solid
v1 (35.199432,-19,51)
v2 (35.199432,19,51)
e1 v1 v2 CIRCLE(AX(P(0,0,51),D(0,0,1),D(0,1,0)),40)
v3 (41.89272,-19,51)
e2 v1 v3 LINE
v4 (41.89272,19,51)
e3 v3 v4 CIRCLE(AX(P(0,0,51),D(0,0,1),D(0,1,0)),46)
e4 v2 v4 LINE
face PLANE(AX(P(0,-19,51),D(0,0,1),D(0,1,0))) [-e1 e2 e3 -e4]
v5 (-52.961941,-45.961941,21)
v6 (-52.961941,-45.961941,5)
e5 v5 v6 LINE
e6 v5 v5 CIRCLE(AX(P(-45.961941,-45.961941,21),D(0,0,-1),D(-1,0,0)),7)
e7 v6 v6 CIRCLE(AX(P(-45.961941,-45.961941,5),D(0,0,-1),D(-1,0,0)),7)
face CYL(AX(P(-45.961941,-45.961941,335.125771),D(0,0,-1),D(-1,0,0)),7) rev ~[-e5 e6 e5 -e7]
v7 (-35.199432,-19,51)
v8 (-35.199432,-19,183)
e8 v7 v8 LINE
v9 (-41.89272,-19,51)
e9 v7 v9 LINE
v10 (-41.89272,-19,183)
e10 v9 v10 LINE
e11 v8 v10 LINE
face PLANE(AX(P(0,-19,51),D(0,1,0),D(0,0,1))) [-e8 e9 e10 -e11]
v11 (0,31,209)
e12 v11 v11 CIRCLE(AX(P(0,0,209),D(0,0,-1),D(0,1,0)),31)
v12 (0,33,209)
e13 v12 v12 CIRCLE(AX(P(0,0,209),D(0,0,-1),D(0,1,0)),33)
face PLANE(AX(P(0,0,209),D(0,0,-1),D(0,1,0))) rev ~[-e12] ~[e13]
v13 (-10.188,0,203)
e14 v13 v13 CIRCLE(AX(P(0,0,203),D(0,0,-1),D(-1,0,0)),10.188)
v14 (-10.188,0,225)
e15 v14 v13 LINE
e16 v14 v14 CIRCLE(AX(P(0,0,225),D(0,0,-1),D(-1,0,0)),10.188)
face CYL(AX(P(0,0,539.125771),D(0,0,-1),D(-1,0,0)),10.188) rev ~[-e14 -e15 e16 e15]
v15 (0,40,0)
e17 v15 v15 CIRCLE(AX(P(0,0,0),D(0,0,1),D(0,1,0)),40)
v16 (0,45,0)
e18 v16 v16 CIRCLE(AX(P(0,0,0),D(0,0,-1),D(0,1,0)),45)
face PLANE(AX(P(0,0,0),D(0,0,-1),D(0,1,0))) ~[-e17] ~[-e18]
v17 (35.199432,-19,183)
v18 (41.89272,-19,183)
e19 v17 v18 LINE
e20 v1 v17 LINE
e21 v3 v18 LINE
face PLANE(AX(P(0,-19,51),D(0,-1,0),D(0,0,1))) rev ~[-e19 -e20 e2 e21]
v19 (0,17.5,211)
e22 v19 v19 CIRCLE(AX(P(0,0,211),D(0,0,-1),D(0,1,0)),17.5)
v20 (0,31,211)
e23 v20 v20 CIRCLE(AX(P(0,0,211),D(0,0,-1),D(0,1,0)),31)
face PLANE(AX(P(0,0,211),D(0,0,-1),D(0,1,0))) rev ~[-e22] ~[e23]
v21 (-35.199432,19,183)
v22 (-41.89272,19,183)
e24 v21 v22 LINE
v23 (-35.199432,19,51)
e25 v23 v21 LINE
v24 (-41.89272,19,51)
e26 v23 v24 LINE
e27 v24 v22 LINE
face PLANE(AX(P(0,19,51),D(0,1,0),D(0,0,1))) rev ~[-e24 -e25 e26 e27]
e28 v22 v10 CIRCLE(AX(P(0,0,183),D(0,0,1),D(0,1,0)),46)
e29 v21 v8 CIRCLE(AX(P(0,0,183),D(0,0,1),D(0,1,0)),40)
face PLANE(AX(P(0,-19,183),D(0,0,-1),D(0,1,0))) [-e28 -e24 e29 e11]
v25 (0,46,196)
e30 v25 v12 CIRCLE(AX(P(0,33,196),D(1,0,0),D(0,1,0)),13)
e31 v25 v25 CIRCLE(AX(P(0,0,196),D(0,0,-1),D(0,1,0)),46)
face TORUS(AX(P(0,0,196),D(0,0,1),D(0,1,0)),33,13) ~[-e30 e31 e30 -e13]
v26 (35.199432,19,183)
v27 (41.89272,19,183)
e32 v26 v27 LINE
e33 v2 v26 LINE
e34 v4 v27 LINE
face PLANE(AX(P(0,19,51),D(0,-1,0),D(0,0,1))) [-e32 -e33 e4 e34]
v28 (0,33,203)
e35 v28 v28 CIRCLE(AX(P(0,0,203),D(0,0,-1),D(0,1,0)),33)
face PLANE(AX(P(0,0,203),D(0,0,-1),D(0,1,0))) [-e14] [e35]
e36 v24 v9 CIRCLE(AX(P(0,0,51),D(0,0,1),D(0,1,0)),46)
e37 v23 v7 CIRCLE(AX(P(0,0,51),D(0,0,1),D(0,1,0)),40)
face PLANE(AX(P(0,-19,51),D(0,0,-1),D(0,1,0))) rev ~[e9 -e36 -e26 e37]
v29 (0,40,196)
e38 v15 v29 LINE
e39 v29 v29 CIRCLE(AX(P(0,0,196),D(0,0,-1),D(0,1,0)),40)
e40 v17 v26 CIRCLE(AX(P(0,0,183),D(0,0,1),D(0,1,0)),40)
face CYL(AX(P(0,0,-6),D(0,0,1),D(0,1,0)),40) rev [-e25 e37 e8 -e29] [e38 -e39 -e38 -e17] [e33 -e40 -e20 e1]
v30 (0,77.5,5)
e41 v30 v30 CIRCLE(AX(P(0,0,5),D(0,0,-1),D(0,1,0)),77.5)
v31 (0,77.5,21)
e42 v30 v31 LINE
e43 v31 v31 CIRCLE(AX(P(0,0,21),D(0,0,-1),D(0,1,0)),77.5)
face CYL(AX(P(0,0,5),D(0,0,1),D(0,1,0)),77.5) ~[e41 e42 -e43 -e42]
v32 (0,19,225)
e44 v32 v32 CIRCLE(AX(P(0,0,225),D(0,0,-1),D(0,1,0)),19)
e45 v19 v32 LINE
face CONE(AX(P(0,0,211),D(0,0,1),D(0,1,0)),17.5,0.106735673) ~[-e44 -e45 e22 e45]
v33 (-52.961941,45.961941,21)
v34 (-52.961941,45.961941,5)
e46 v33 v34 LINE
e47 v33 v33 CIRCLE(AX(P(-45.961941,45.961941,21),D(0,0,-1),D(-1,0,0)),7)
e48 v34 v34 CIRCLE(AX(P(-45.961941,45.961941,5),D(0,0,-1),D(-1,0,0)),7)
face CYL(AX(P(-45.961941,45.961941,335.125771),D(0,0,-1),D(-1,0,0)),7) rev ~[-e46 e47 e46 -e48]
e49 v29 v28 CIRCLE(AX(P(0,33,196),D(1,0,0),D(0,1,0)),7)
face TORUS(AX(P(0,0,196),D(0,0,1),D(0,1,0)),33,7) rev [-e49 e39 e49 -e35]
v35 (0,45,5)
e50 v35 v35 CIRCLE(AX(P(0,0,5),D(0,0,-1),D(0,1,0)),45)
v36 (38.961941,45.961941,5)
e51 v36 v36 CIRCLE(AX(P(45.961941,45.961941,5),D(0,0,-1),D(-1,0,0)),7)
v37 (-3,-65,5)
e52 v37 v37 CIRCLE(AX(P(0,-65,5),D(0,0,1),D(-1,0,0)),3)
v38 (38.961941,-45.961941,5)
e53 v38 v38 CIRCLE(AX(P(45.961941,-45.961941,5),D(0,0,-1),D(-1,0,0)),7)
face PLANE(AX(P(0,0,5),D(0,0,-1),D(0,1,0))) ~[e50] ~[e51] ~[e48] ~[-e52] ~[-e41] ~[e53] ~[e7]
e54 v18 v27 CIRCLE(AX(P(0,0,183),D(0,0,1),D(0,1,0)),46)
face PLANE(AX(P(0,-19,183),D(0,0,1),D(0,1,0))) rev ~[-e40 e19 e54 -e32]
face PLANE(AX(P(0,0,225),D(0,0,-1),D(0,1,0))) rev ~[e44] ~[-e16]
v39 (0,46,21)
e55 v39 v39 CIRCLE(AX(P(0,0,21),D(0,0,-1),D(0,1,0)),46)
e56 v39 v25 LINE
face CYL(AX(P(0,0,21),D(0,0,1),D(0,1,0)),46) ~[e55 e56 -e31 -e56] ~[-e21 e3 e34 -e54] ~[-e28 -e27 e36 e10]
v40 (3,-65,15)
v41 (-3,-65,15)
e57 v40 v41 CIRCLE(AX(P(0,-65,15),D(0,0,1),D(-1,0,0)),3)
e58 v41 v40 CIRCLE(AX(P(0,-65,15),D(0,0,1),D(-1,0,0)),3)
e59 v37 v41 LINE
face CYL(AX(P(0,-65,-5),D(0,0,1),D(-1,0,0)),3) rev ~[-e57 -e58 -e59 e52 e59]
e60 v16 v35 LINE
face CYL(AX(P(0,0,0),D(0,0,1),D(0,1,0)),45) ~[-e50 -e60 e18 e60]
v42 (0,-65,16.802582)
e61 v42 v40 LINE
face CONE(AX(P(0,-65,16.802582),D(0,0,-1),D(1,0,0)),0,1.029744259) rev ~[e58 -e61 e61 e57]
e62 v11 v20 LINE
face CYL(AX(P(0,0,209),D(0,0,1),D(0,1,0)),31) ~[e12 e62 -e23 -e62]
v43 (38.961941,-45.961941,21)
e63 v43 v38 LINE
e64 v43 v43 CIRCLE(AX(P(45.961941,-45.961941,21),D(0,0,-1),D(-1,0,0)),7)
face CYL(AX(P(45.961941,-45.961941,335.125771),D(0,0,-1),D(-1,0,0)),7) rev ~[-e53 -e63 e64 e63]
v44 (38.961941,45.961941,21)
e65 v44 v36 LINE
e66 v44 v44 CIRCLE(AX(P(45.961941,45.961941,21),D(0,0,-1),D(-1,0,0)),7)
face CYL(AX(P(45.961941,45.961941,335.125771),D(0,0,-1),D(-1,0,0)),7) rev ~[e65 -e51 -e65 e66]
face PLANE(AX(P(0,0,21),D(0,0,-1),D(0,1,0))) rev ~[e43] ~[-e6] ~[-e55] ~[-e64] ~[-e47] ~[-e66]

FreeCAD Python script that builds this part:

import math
import FreeCAD as App
import Part
import Sketcher
Q = App.Units.Quantity

doc = App.newDocument("Part")
body = doc.addObject("PartDesign::Body", "Body")

# Sketch on YZ plane
sketch1 = body.newObject("Sketcher::SketchObject", "Sketch")
sketch1.AttachmentSupport = (doc.getObject("YZ_Plane"), [""])
sketch1.MapMode = "FlatFace"
sketch1.addGeometry([
    Part.LineSegment(App.Vector(19, 225, 0), App.Vector(0, 225, 0)),  # 0
    Part.LineSegment(App.Vector(0, 225, 0), App.Vector(0, 0, 0)),  # 1
    Part.LineSegment(App.Vector(0, 0, 0), App.Vector(45, 0, 0)),  # 2
    Part.LineSegment(App.Vector(45, 0, 0), App.Vector(45, 5, 0)),  # 3
    Part.LineSegment(App.Vector(45, 5, 0), App.Vector(77.5, 5, 0)),  # 4
    Part.LineSegment(App.Vector(77.5, 5, 0), App.Vector(77.5, 21, 0)),  # 5
    Part.LineSegment(App.Vector(77.5, 21, 0), App.Vector(46, 21, 0)),  # 6
    Part.LineSegment(App.Vector(46, 21, 0), App.Vector(46, 196, 0)),  # 7
    Part.ArcOfCircle(Part.Circle(App.Vector(33, 196, 0), App.Vector(0, 0, 1), 13), math.radians(0), math.radians(90)),  # 8
    Part.LineSegment(App.Vector(33, 209, 0), App.Vector(31, 209, 0)),  # 9
    Part.LineSegment(App.Vector(31, 209, 0), App.Vector(31, 211, 0)),  # 10
    Part.LineSegment(App.Vector(31, 211, 0), App.Vector(17.5, 211, 0)),  # 11
    Part.LineSegment(App.Vector(17.5, 211, 0), App.Vector(19, 225, 0)),  # 12
], False)
sketch1.addConstraint([
    Sketcher.Constraint("Coincident", 0, 2, 1, 1),
    Sketcher.Constraint("Coincident", 1, 2, 2, 1),
    Sketcher.Constraint("Coincident", 2, 2, 3, 1),
    Sketcher.Constraint("Coincident", 3, 2, 4, 1),
    Sketcher.Constraint("Coincident", 4, 2, 5, 1),
    Sketcher.Constraint("Coincident", 5, 2, 6, 1),
    Sketcher.Constraint("Coincident", 6, 2, 7, 1),
    Sketcher.Constraint("Tangent", 7, 2, 8, 1),
    Sketcher.Constraint("Tangent", 8, 2, 9, 1),
    Sketcher.Constraint("Coincident", 9, 2, 10, 1),
    Sketcher.Constraint("Coincident", 10, 2, 11, 1),
    Sketcher.Constraint("Coincident", 11, 2, 12, 1),
    Sketcher.Constraint("Coincident", 12, 2, 0, 1),
    Sketcher.Constraint("Horizontal", 0),
    Sketcher.Constraint("Vertical", 1),
    Sketcher.Constraint("Horizontal", 2),
    Sketcher.Constraint("Vertical", 3),
    Sketcher.Constraint("Horizontal", 4),
    Sketcher.Constraint("Vertical", 5),
    Sketcher.Constraint("Horizontal", 6),
    Sketcher.Constraint("Vertical", 7),
    Sketcher.Constraint("Horizontal", 9),
    Sketcher.Constraint("Vertical", 10),
    Sketcher.Constraint("Horizontal", 11),
    Sketcher.Constraint("Coincident", 1, 2, -1, 1),
    Sketcher.Constraint("Equal", 9, 10),
    Sketcher.Constraint("Radius", 8, Q("13 mm")),
    Sketcher.Constraint("DistanceX", 0, 2, 0, 1, Q("19 mm")),
    Sketcher.Constraint("DistanceX", 2, 1, 2, 2, Q("45 mm")),
    Sketcher.Constraint("DistanceX", 9, 2, 9, 1, Q("2 mm")),
    Sketcher.Constraint("DistanceY", 1, 2, 1, 1, Q("225 mm")),
    Sketcher.Constraint("DistanceY", 3, 1, 3, 2, Q("5 mm")),
    Sketcher.Constraint("DistanceY", 5, 1, 5, 2, Q("16 mm")),
    Sketcher.Constraint("DistanceY", 7, 1, 7, 2, Q("175 mm")),
    Sketcher.Constraint("DistanceX", 4, 1, 4, 2, Q("32.5 mm")),
    Sketcher.Constraint("DistanceX", 6, 2, 6, 1, Q("31.5 mm")),
    Sketcher.Constraint("DistanceX", 11, 2, 11, 1, Q("13.5 mm")),
])
revolution = body.newObject("PartDesign::Revolution", "Revolution")
revolution.Profile = sketch1
revolution.ReferenceAxis = (sketch1, ["V_Axis"])
revolution.Angle = 360

# Sketch on YZ plane
sketch2 = body.newObject("Sketcher::SketchObject", "Sketch001")
sketch2.AttachmentSupport = (doc.getObject("YZ_Plane"), [""])
sketch2.MapMode = "FlatFace"
sketch2.addGeometry([
    Part.LineSegment(App.Vector(33, 203, 0), App.Vector(0, 203, 0)),  # 0
    Part.LineSegment(App.Vector(0, 203, 0), App.Vector(0, -6, 0)),  # 1
    Part.LineSegment(App.Vector(0, -6, 0), App.Vector(40, -6, 0)),  # 2
    Part.LineSegment(App.Vector(40, -6, 0), App.Vector(40, 196, 0)),  # 3
    Part.ArcOfCircle(Part.Circle(App.Vector(33, 196, 0), App.Vector(0, 0, 1), 7), math.radians(0), math.radians(90)),  # 4
], False)
sketch2.addConstraint([
    Sketcher.Constraint("Coincident", 0, 2, 1, 1),
    Sketcher.Constraint("Coincident", 1, 2, 2, 1),
    Sketcher.Constraint("Coincident", 2, 2, 3, 1),
    Sketcher.Constraint("Tangent", 3, 2, 4, 1),
    Sketcher.Constraint("Tangent", 4, 2, 0, 1),
    Sketcher.Constraint("Horizontal", 0),
    Sketcher.Constraint("Vertical", 1),
    Sketcher.Constraint("Horizontal", 2),
    Sketcher.Constraint("Vertical", 3),
    Sketcher.Constraint("PointOnObject", 0, 2, -2),
    Sketcher.Constraint("Radius", 4, Q("7 mm")),
    Sketcher.Constraint("DistanceX", 0, 2, 0, 1, Q("33 mm")),
    Sketcher.Constraint("DistanceY", 1, 2, 1, 1, Q("209 mm")),
    Sketcher.Constraint("DistanceY", -1, 1, 4, 3, Q("196 mm")),
])
groove = body.newObject("PartDesign::Groove", "Groove")
groove.Profile = sketch2
groove.ReferenceAxis = (sketch2, ["V_Axis"])
groove.Angle = 360

# Sketch on XY plane
sketch3 = body.newObject("Sketcher::SketchObject", "Sketch002")
sketch3.AttachmentSupport = (doc.getObject("XY_Plane"), [""])
sketch3.MapMode = "FlatFace"
sketch3.AttachmentOffset = App.Placement(App.Vector(0, 0, 225), App.Rotation())
sketch3.addGeometry(Part.Circle(App.Vector(0, 0, 0), App.Vector(0, 0, 1), 10), False)
sketch3.addConstraint([
    Sketcher.Constraint("Coincident", 0, 3, -1, 1),
    Sketcher.Constraint("Diameter", 0, Q("20.376 mm")),
])
doc.recompute()
hole = body.newObject("PartDesign::Hole", "Hole")
hole.Profile = sketch3
hole.ThreadType = "None"
hole.Diameter = 20.376
hole.DepthType = "ThroughAll"

# Sketch on XY plane
sketch4 = body.newObject("Sketcher::SketchObject", "Sketch003")
sketch4.AttachmentSupport = (doc.getObject("XY_Plane"), [""])
sketch4.MapMode = "FlatFace"
sketch4.AttachmentOffset = App.Placement(App.Vector(0, 0, 21), App.Rotation())
sketch4.addGeometry([
    Part.Circle(App.Vector(46, 46, 0), App.Vector(0, 0, 1), 7),
    Part.Circle(App.Vector(46, -46, 0), App.Vector(0, 0, 1), 7),
    Part.Circle(App.Vector(-46, 46, 0), App.Vector(0, 0, 1), 7),
    Part.Circle(App.Vector(-46, -46, 0), App.Vector(0, 0, 1), 7),
], False)
sketch4.addConstraint([
    Sketcher.Constraint("Equal", 0, 1),
    Sketcher.Constraint("Equal", 1, 2),
    Sketcher.Constraint("Equal", 2, 3),
    Sketcher.Constraint("Symmetric", 1, 3, 2, 3, -1, 1),
    Sketcher.Constraint("Symmetric", 0, 3, 3, 3, -1, 1),
    Sketcher.Constraint("Symmetric", 0, 3, 2, 3, -2),
    Sketcher.Constraint("Diameter", 0, Q("14 mm")),
    Sketcher.Constraint("DistanceX", -1, 1, 0, 3, Q("45.961941 mm")),
    Sketcher.Constraint("DistanceY", -1, 1, 0, 3, Q("45.961941 mm")),
])
doc.recompute()
hole2 = body.newObject("PartDesign::Hole", "Hole001")
hole2.Profile = sketch4
hole2.ThreadType = "None"
hole2.Diameter = 14
hole2.DepthType = "ThroughAll"

# Sketch on YZ plane
sketch5 = body.newObject("Sketcher::SketchObject", "Sketch004")
sketch5.AttachmentSupport = (doc.getObject("YZ_Plane"), [""])
sketch5.MapMode = "FlatFace"
sketch5.addGeometry([
    Part.LineSegment(App.Vector(-19, 183, 0), App.Vector(-19, 51, 0)),
    Part.LineSegment(App.Vector(-19, 51, 0), App.Vector(19, 51, 0)),
    Part.LineSegment(App.Vector(19, 51, 0), App.Vector(19, 183, 0)),
    Part.LineSegment(App.Vector(19, 183, 0), App.Vector(-19, 183, 0)),
], False)
sketch5.addConstraint([
    Sketcher.Constraint("Coincident", 0, 2, 1, 1),
    Sketcher.Constraint("Coincident", 1, 2, 2, 1),
    Sketcher.Constraint("Coincident", 2, 2, 3, 1),
    Sketcher.Constraint("Coincident", 3, 2, 0, 1),
    Sketcher.Constraint("Vertical", 0),
    Sketcher.Constraint("Horizontal", 1),
    Sketcher.Constraint("Vertical", 2),
    Sketcher.Constraint("Horizontal", 3),
    Sketcher.Constraint("DistanceX", 1, 1, 1, 2, Q("38 mm")),
    Sketcher.Constraint("DistanceY", 0, 2, 0, 1, Q("132 mm")),
    Sketcher.Constraint("DistanceX", 0, 2, -1, 1, Q("19 mm")),
    Sketcher.Constraint("DistanceY", -1, 1, 0, 2, Q("51 mm")),
])
pocket1 = body.newObject("PartDesign::Pocket", "Pocket")
pocket1.Profile = sketch5
pocket1.Type = "ThroughAll"
pocket1.Midplane = True

# Sketch on XY plane
sketch6 = body.newObject("Sketcher::SketchObject", "Sketch005")
sketch6.AttachmentSupport = (doc.getObject("XY_Plane"), [""])
sketch6.MapMode = "FlatFace"
sketch6.AttachmentOffset = App.Placement(App.Vector(0, 0, 5), App.Rotation())
sketch6.addGeometry(Part.Circle(App.Vector(0, -65, 0), App.Vector(0, 0, 1), 3), False)
sketch6.addConstraint([
    Sketcher.Constraint("PointOnObject", 0, 3, -2),
    Sketcher.Constraint("Diameter", 0, Q("6 mm")),
    Sketcher.Constraint("DistanceY", 0, 3, -1, 1, Q("65 mm")),
])
doc.recompute()
hole3 = body.newObject("PartDesign::Hole", "Hole002")
hole3.Profile = sketch6
hole3.ThreadType = "None"
hole3.Diameter = 6
hole3.DepthType = "Dimension"
hole3.Depth = 10
hole3.DrillPoint = "Angled"
hole3.DrillPointAngle = 118
hole3.Reversed = True

doc.recompute()
